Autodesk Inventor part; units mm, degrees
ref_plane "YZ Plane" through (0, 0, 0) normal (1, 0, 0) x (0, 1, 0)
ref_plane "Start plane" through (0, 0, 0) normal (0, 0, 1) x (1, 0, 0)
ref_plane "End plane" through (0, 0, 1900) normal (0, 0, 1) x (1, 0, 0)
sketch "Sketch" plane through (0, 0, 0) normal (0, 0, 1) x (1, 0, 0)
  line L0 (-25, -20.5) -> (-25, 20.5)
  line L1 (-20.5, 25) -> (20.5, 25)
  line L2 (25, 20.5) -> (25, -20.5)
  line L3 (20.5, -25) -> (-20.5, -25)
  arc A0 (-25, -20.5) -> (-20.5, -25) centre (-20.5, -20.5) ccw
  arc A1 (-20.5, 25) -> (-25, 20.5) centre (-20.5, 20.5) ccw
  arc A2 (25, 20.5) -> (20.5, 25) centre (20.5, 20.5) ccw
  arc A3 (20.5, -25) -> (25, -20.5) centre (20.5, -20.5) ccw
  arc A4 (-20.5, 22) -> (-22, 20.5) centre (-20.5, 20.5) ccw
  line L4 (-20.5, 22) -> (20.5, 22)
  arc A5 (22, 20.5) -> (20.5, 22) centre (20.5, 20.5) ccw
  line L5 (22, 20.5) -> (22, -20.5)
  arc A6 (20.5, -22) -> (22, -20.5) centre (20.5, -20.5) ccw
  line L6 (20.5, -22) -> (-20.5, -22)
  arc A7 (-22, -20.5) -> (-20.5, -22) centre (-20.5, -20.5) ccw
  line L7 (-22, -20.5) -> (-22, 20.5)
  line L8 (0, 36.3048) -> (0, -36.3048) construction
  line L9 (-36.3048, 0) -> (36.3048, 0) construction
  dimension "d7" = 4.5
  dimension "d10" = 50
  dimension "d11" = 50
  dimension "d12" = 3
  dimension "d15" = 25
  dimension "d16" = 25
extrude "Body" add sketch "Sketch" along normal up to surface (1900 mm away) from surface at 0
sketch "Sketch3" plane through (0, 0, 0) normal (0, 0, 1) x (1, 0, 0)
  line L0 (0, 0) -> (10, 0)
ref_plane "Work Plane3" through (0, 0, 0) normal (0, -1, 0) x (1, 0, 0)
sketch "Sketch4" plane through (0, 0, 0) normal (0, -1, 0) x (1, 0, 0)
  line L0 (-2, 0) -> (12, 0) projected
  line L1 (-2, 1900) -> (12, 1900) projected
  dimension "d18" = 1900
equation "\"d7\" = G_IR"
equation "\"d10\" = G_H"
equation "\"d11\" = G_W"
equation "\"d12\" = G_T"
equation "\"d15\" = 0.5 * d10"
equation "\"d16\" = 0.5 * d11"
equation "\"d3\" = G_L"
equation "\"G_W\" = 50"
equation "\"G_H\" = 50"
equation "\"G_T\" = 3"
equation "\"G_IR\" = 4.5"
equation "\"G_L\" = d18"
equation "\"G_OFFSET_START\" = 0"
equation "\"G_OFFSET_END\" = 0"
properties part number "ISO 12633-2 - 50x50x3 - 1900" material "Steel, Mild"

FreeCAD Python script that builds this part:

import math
import FreeCAD as App
import Part
import Sketcher
Q = App.Units.Quantity

doc = App.newDocument("Part")
params = doc.addObject("Spreadsheet::Sheet", "Params")
for row, (alias, value) in enumerate([
    ("sketch1_radius", "4.5 mm"),
    ("sketch1_radius2", "1.5 mm"),
    ("pad1_length", "1900 mm"),
], start=1):
    params.set(f"A{row}", alias)
    params.set(f"B{row}", "=" + value)
    params.setAlias(f"B{row}", alias)

body = doc.addObject("PartDesign::Body", "Body")

# Sketch on XY plane
sketch1 = doc.addObject("Sketcher::SketchObject", "Sketch")
body.addObject(sketch1)
sketch1.AttachmentSupport = (doc.XY_Plane, [""])
sketch1.MapMode = "FlatFace"
sketch1.addGeometry(Part.LineSegment(App.Vector(-25, 20.5, 0), App.Vector(-25, -20.5, 0)), False)
sketch1.addGeometry(Part.ArcOfCircle(Part.Circle(App.Vector(-20.5, -20.5, 0), App.Vector(0, 0, 1), 4.5), math.radians(180), math.radians(270)), False)
sketch1.addGeometry(Part.LineSegment(App.Vector(-20.5, -25, 0), App.Vector(20.5, -25, 0)), False)
sketch1.addGeometry(Part.ArcOfCircle(Part.Circle(App.Vector(20.5, -20.5, 0), App.Vector(0, 0, 1), 4.5), math.radians(-90), math.radians(0)), False)
sketch1.addGeometry(Part.LineSegment(App.Vector(25, -20.5, 0), App.Vector(25, 20.5, 0)), False)
sketch1.addGeometry(Part.ArcOfCircle(Part.Circle(App.Vector(20.5, 20.5, 0), App.Vector(0, 0, 1), 4.5), math.radians(0), math.radians(90)), False)
sketch1.addGeometry(Part.LineSegment(App.Vector(20.5, 25, 0), App.Vector(-20.5, 25, 0)), False)
sketch1.addGeometry(Part.ArcOfCircle(Part.Circle(App.Vector(-20.5, 20.5, 0), App.Vector(0, 0, 1), 4.5), math.radians(90), math.radians(180)), False)
sketch1.addGeometry(Part.ArcOfCircle(Part.Circle(App.Vector(-20.5, 20.5, 0), App.Vector(0, 0, 1), 1.5), math.radians(90), math.radians(180)), False)
sketch1.addGeometry(Part.LineSegment(App.Vector(-20.5, 22, 0), App.Vector(20.5, 22, 0)), False)
sketch1.addGeometry(Part.ArcOfCircle(Part.Circle(App.Vector(20.5, 20.5, 0), App.Vector(0, 0, 1), 1.5), math.radians(0), math.radians(90)), False)
sketch1.addGeometry(Part.LineSegment(App.Vector(22, 20.5, 0), App.Vector(22, -20.5, 0)), False)
sketch1.addGeometry(Part.ArcOfCircle(Part.Circle(App.Vector(20.5, -20.5, 0), App.Vector(0, 0, 1), 1.5), math.radians(-90), math.radians(0)), False)
sketch1.addGeometry(Part.LineSegment(App.Vector(20.5, -22, 0), App.Vector(-20.5, -22, 0)), False)
sketch1.addGeometry(Part.ArcOfCircle(Part.Circle(App.Vector(-20.5, -20.5, 0), App.Vector(0, 0, 1), 1.5), math.radians(180), math.radians(270)), False)
sketch1.addGeometry(Part.LineSegment(App.Vector(-22, -20.5, 0), App.Vector(-22, 20.5, 0)), False)
sketch1.addConstraint(Sketcher.Constraint("Tangent", 0, 2, 1, 1))
sketch1.addConstraint(Sketcher.Constraint("Tangent", 1, 2, 2, 1))
sketch1.addConstraint(Sketcher.Constraint("Tangent", 2, 2, 3, 1))
sketch1.addConstraint(Sketcher.Constraint("Tangent", 3, 2, 4, 1))
sketch1.addConstraint(Sketcher.Constraint("Tangent", 4, 2, 5, 1))
sketch1.addConstraint(Sketcher.Constraint("Tangent", 5, 2, 6, 1))
sketch1.addConstraint(Sketcher.Constraint("Tangent", 6, 2, 7, 1))
sketch1.addConstraint(Sketcher.Constraint("Tangent", 7, 2, 0, 1))
sketch1.addConstraint(Sketcher.Constraint("Tangent", 8, 1, 9, 1))
sketch1.addConstraint(Sketcher.Constraint("Tangent", 9, 2, 10, 2))
sketch1.addConstraint(Sketcher.Constraint("Tangent", 10, 1, 11, 1))
sketch1.addConstraint(Sketcher.Constraint("Tangent", 11, 2, 12, 2))
sketch1.addConstraint(Sketcher.Constraint("Tangent", 12, 1, 13, 1))
sketch1.addConstraint(Sketcher.Constraint("Tangent", 13, 2, 14, 2))
sketch1.addConstraint(Sketcher.Constraint("Tangent", 14, 1, 15, 1))
sketch1.addConstraint(Sketcher.Constraint("Tangent", 15, 2, 8, 2))
sketch1.addConstraint(Sketcher.Constraint("Vertical", 0))
sketch1.addConstraint(Sketcher.Constraint("Horizontal", 2))
sketch1.addConstraint(Sketcher.Constraint("Vertical", 4))
sketch1.addConstraint(Sketcher.Constraint("Horizontal", 6))
sketch1.addConstraint(Sketcher.Constraint("Horizontal", 9))
sketch1.addConstraint(Sketcher.Constraint("Vertical", 11))
sketch1.addConstraint(Sketcher.Constraint("Horizontal", 13))
sketch1.addConstraint(Sketcher.Constraint("Vertical", 15))
sketch1.addConstraint(Sketcher.Constraint("Coincident", 8, 3, 7, 3))
sketch1.addConstraint(Sketcher.Constraint("Coincident", 10, 3, 5, 3))
sketch1.addConstraint(Sketcher.Constraint("Coincident", 12, 3, 3, 3))
sketch1.addConstraint(Sketcher.Constraint("Equal", 1, 3))
sketch1.addConstraint(Sketcher.Constraint("Equal", 3, 5))
sketch1.addConstraint(Sketcher.Constraint("Equal", 5, 7))
sketch1.addConstraint(Sketcher.Constraint("Equal", 12, 14))
sketch1.addConstraint(Sketcher.Constraint("Symmetric", 1, 3, 5, 3, -1, 1))
sketch1.addConstraint(Sketcher.Constraint("Equal", 13, 0))
sketch1.addConstraint(Sketcher.Constraint("Radius", 1, Q("4.5 mm")))
sketch1.addConstraint(Sketcher.Constraint("Radius", 8, Q("1.5 mm")))
sketch1.addConstraint(Sketcher.Constraint("DistanceX", 0, 2, -1, 1, Q("25 mm")))
sketch1.setExpression("Constraints[33]", "Params.sketch1_radius")
sketch1.setExpression("Constraints[34]", "Params.sketch1_radius2")
pad1 = doc.addObject("PartDesign::Pad", "Pad")
body.addObject(pad1)
pad1.Profile = sketch1
pad1.setExpression("Length", "Params.pad1_length")

doc.recompute()
